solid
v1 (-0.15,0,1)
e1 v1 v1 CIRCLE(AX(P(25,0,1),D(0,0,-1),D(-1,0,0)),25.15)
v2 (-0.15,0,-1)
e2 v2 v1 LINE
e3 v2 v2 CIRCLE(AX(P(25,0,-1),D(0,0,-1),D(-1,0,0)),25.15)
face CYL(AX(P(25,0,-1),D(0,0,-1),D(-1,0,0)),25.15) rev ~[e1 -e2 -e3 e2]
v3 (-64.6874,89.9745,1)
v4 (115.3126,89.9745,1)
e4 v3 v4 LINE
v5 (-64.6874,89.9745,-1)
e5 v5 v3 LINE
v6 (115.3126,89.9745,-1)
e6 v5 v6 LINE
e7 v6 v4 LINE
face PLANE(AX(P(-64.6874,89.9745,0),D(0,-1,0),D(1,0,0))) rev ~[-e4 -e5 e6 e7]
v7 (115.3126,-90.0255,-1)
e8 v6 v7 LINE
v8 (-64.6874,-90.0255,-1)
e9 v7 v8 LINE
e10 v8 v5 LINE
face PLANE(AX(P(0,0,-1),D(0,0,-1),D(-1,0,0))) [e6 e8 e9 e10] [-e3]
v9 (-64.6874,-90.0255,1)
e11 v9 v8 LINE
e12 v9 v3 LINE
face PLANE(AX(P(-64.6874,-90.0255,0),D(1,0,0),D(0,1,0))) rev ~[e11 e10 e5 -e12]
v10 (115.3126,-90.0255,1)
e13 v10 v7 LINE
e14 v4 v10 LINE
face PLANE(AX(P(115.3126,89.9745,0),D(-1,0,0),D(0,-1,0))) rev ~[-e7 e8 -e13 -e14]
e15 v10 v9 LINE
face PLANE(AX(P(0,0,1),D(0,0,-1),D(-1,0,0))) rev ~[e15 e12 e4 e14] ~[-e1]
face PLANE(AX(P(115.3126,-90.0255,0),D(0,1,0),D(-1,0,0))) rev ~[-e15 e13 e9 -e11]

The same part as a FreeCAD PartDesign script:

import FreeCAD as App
import Part
import Sketcher
from FreeCAD import Vector
Q = App.Units.Quantity


def add_polygon(sketch, points):
    """Adds a closed chain of lines whose ends are joined by coincident constraints."""
    first, n = sketch.GeometryCount, len(points)
    for a, b in zip(points, points[1:] + points[:1]):
        sketch.addGeometry(Part.LineSegment(App.Vector(*a, 0), App.Vector(*b, 0)), False)
    for i in range(n):
        sketch.addConstraint(Sketcher.Constraint("Coincident", first + i, 2, first + (i + 1) % n, 1))

doc = App.newDocument("Part")
body = doc.addObject("PartDesign::Body", "Body")

# Sketch on XY plane
sketch1 = body.newObject("Sketcher::SketchObject", "Sketch")
sketch1.AttachmentSupport = (doc.getObject("XY_Plane"), [""])
sketch1.MapMode = "FlatFace"
add_polygon(sketch1, [(115, 90), (115, -90), (-65, -90), (-65, 90)])  # lines 0-3
sketch1.addConstraint(Sketcher.Constraint("Vertical", 0))
sketch1.addConstraint(Sketcher.Constraint("Horizontal", 1))
sketch1.addConstraint(Sketcher.Constraint("Vertical", 2))
sketch1.addConstraint(Sketcher.Constraint("Horizontal", 3))
sketch1.addConstraint(Sketcher.Constraint("Equal", 3, 0))
sketch1.addConstraint(Sketcher.Constraint("DistanceX", 1, 2, 1, 1, Q("180 mm")))
sketch1.addConstraint(Sketcher.Constraint("DistanceX", -1, 1, 0, 2, Q("115.3126 mm")))
sketch1.addConstraint(Sketcher.Constraint("DistanceY", 0, 2, -1, 1, Q("90.0255 mm")))
pad1 = body.newObject("PartDesign::Pad", "Pad")
pad1.Profile = sketch1
pad1.Length = 2
pad1.Midplane = True

# Sketch on XY plane
sketch2 = body.newObject("Sketcher::SketchObject", "Sketch001")
sketch2.AttachmentSupport = (doc.getObject("XY_Plane"), [""])
sketch2.MapMode = "FlatFace"
sketch2.AttachmentOffset = App.Placement(Vector(0, 0, -1), App.Rotation())
sketch2.addGeometry(Part.Circle(Vector(25, 0, 0), Vector(0, 0, 1), 25), False)
sketch2.addConstraint(Sketcher.Constraint("PointOnObject", 0, 3, -1))
sketch2.addConstraint(Sketcher.Constraint("Diameter", 0, Q("50.3 mm")))
sketch2.addConstraint(Sketcher.Constraint("DistanceX", -1, 1, 0, 3, Q("25 mm")))
pocket1 = body.newObject("PartDesign::Pocket", "Pocket")
pocket1.Profile = sketch2
pocket1.Type = "ThroughAll"
pocket1.Reversed = True

doc.recompute()
